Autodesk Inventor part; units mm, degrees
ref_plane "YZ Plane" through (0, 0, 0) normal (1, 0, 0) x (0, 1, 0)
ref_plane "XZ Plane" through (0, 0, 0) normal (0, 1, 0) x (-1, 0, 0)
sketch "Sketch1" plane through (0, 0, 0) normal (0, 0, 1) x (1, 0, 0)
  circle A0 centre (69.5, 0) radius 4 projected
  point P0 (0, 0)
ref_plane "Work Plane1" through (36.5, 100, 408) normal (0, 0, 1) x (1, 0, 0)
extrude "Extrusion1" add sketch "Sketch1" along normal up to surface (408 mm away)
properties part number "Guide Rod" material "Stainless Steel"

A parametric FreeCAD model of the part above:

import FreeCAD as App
import Part
import Sketcher

V = App.Vector
Q = App.Units.Quantity

doc = App.newDocument("Part")
body = doc.addObject("PartDesign::Body", "Body")

sketch1 = body.newObject("Sketcher::SketchObject", "Sketch")
sketch1.AttachmentSupport = (doc.getObject("XY_Plane"), [""])
sketch1.MapMode = "FlatFace"
sketch1.addGeometry(Part.Circle(V(69.5, 0, 0), V(0, 0, 1), 4), False)
sketch1.addConstraint(Sketcher.Constraint("PointOnObject", 0, 3, -1))
sketch1.addConstraint(Sketcher.Constraint("Diameter", 0, Q("8 mm")))
sketch1.addConstraint(Sketcher.Constraint("DistanceX", -1, 1, 0, 3, Q("69.5 mm")))
pad1 = body.newObject("PartDesign::Pad", "Pad")
pad1.Profile = sketch1
pad1.Length = 408

doc.recompute()
